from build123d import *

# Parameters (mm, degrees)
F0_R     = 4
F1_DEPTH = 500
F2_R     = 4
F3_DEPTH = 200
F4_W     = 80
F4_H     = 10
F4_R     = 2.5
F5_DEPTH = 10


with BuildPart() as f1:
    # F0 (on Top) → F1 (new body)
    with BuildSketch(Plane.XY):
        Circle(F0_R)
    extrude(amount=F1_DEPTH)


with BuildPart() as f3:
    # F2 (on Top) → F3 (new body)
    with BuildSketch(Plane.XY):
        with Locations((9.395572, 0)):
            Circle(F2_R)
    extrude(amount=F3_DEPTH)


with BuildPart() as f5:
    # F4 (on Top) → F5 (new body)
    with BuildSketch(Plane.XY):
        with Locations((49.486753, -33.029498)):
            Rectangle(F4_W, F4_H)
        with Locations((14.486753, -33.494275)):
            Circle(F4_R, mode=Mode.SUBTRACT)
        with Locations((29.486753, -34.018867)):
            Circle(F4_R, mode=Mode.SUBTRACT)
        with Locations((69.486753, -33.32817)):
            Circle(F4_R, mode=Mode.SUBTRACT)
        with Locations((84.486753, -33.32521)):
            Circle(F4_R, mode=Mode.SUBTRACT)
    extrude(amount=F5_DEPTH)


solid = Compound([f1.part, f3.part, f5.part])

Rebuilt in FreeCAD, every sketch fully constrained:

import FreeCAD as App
import Part
import Sketcher
from FreeCAD import Vector


def add_polygon(sketch, points):
    """Adds a closed chain of lines whose ends are joined by coincident constraints."""
    first, n = sketch.GeometryCount, len(points)
    for a, b in zip(points, points[1:] + points[:1]):
        sketch.addGeometry(Part.LineSegment(App.Vector(*a, 0), App.Vector(*b, 0)), False)
    for i in range(n):
        sketch.addConstraint(Sketcher.Constraint("Coincident", first + i, 2, first + (i + 1) % n, 1))

doc = App.newDocument("Part")
body = doc.addObject("PartDesign::Body", "Body")

# Sketch on XY plane
sketch1 = doc.addObject("Sketcher::SketchObject", "Sketch")
body.addObject(sketch1)
sketch1.AttachmentSupport = (doc.XY_Plane, [""])
sketch1.MapMode = "FlatFace"
sketch1.addGeometry(Part.Circle(Vector(0, 0, 0), Vector(0, 0, 1), 4), False)
sketch1.addConstraint(Sketcher.Constraint("Coincident", 0, 3, -1, 1))
sketch1.addConstraint(Sketcher.Constraint("Diameter", 0, 8.0))
pad1 = doc.addObject("PartDesign::Pad", "Pad")
body.addObject(pad1)
pad1.Profile = sketch1
pad1.Length = 500
body2 = doc.addObject("PartDesign::Body", "Body001")

# Sketch on XY plane
sketch2 = doc.addObject("Sketcher::SketchObject", "Sketch001")
body2.addObject(sketch2)
sketch2.AttachmentSupport = (doc.getObject("XY_Plane001"), [""])
sketch2.MapMode = "FlatFace"
sketch2.addGeometry(Part.Circle(Vector(9.4, 0, 0), Vector(0, 0, 1), 4), False)
sketch2.addConstraint(Sketcher.Constraint("PointOnObject", 0, 3, -1))
sketch2.addConstraint(Sketcher.Constraint("Diameter", 0, 8.0))
sketch2.addConstraint(Sketcher.Constraint("DistanceX", -1, 1, 0, 3, 9.395572))
pad2 = doc.addObject("PartDesign::Pad", "Pad001")
body2.addObject(pad2)
pad2.Profile = sketch2
pad2.Length = 200
body3 = doc.addObject("PartDesign::Body", "Body002")

# Sketch on XY plane
sketch3 = doc.addObject("Sketcher::SketchObject", "Sketch002")
body3.addObject(sketch3)
sketch3.AttachmentSupport = (doc.getObject("XY_Plane002"), [""])
sketch3.MapMode = "FlatFace"
add_polygon(sketch3, [(9.5, -28), (9.5, -38), (89.5, -38), (89.5, -28)])  # lines 0-3
sketch3.addGeometry(Part.Circle(Vector(29.5, -34, 0), Vector(0, 0, 1), 2.5), False)  # 4
sketch3.addGeometry(Part.Circle(Vector(14.5, -33.5, 0), Vector(0, 0, 1), 2.5), False)  # 5
sketch3.addGeometry(Part.Circle(Vector(69.5, -33.3, 0), Vector(0, 0, 1), 2.5), False)  # 6
sketch3.addGeometry(Part.Circle(Vector(84.5, -33.3, 0), Vector(0, 0, 1), 2.5), False)  # 7
sketch3.addConstraint(Sketcher.Constraint("Vertical", 0))
sketch3.addConstraint(Sketcher.Constraint("Horizontal", 1))
sketch3.addConstraint(Sketcher.Constraint("Vertical", 2))
sketch3.addConstraint(Sketcher.Constraint("Horizontal", 3))
sketch3.addConstraint(Sketcher.Constraint("Equal", 4, 5))
sketch3.addConstraint(Sketcher.Constraint("Equal", 5, 6))
sketch3.addConstraint(Sketcher.Constraint("Equal", 6, 7))
sketch3.addConstraint(Sketcher.Constraint("Diameter", 4, 5.0))
sketch3.addConstraint(Sketcher.Constraint("DistanceX", 1, 1, 1, 2, 80.0))
sketch3.addConstraint(Sketcher.Constraint("DistanceY", 0, 2, 0, 1, 10.0))
sketch3.addConstraint(Sketcher.Constraint("DistanceX", 5, 3, 4, 3, 15.0))
sketch3.addConstraint(Sketcher.Constraint("DistanceX", 4, 3, 6, 3, 40.0))
sketch3.addConstraint(Sketcher.Constraint("DistanceX", 6, 3, 7, 3, 15.0))
sketch3.addConstraint(Sketcher.Constraint("DistanceX", 0, 2, 5, 3, 5.0))
sketch3.addConstraint(Sketcher.Constraint("DistanceY", 2, 2, -1, 1, 28.029498))
sketch3.addConstraint(Sketcher.Constraint("DistanceY", 6, 3, -1, 1, 33.32817))
sketch3.addConstraint(Sketcher.Constraint("DistanceY", 7, 3, -1, 1, 33.32521))
sketch3.addConstraint(Sketcher.Constraint("DistanceY", 4, 3, 5, 3, 0.524592))
sketch3.addConstraint(Sketcher.Constraint("DistanceY", 0, 2, 4, 3, 4.010631))
sketch3.addConstraint(Sketcher.Constraint("DistanceX", -1, 1, 4, 3, 29.486753))
pad3 = doc.addObject("PartDesign::Pad", "Pad002")
body3.addObject(pad3)
pad3.Profile = sketch3
pad3.Length = 10

doc.recompute()
